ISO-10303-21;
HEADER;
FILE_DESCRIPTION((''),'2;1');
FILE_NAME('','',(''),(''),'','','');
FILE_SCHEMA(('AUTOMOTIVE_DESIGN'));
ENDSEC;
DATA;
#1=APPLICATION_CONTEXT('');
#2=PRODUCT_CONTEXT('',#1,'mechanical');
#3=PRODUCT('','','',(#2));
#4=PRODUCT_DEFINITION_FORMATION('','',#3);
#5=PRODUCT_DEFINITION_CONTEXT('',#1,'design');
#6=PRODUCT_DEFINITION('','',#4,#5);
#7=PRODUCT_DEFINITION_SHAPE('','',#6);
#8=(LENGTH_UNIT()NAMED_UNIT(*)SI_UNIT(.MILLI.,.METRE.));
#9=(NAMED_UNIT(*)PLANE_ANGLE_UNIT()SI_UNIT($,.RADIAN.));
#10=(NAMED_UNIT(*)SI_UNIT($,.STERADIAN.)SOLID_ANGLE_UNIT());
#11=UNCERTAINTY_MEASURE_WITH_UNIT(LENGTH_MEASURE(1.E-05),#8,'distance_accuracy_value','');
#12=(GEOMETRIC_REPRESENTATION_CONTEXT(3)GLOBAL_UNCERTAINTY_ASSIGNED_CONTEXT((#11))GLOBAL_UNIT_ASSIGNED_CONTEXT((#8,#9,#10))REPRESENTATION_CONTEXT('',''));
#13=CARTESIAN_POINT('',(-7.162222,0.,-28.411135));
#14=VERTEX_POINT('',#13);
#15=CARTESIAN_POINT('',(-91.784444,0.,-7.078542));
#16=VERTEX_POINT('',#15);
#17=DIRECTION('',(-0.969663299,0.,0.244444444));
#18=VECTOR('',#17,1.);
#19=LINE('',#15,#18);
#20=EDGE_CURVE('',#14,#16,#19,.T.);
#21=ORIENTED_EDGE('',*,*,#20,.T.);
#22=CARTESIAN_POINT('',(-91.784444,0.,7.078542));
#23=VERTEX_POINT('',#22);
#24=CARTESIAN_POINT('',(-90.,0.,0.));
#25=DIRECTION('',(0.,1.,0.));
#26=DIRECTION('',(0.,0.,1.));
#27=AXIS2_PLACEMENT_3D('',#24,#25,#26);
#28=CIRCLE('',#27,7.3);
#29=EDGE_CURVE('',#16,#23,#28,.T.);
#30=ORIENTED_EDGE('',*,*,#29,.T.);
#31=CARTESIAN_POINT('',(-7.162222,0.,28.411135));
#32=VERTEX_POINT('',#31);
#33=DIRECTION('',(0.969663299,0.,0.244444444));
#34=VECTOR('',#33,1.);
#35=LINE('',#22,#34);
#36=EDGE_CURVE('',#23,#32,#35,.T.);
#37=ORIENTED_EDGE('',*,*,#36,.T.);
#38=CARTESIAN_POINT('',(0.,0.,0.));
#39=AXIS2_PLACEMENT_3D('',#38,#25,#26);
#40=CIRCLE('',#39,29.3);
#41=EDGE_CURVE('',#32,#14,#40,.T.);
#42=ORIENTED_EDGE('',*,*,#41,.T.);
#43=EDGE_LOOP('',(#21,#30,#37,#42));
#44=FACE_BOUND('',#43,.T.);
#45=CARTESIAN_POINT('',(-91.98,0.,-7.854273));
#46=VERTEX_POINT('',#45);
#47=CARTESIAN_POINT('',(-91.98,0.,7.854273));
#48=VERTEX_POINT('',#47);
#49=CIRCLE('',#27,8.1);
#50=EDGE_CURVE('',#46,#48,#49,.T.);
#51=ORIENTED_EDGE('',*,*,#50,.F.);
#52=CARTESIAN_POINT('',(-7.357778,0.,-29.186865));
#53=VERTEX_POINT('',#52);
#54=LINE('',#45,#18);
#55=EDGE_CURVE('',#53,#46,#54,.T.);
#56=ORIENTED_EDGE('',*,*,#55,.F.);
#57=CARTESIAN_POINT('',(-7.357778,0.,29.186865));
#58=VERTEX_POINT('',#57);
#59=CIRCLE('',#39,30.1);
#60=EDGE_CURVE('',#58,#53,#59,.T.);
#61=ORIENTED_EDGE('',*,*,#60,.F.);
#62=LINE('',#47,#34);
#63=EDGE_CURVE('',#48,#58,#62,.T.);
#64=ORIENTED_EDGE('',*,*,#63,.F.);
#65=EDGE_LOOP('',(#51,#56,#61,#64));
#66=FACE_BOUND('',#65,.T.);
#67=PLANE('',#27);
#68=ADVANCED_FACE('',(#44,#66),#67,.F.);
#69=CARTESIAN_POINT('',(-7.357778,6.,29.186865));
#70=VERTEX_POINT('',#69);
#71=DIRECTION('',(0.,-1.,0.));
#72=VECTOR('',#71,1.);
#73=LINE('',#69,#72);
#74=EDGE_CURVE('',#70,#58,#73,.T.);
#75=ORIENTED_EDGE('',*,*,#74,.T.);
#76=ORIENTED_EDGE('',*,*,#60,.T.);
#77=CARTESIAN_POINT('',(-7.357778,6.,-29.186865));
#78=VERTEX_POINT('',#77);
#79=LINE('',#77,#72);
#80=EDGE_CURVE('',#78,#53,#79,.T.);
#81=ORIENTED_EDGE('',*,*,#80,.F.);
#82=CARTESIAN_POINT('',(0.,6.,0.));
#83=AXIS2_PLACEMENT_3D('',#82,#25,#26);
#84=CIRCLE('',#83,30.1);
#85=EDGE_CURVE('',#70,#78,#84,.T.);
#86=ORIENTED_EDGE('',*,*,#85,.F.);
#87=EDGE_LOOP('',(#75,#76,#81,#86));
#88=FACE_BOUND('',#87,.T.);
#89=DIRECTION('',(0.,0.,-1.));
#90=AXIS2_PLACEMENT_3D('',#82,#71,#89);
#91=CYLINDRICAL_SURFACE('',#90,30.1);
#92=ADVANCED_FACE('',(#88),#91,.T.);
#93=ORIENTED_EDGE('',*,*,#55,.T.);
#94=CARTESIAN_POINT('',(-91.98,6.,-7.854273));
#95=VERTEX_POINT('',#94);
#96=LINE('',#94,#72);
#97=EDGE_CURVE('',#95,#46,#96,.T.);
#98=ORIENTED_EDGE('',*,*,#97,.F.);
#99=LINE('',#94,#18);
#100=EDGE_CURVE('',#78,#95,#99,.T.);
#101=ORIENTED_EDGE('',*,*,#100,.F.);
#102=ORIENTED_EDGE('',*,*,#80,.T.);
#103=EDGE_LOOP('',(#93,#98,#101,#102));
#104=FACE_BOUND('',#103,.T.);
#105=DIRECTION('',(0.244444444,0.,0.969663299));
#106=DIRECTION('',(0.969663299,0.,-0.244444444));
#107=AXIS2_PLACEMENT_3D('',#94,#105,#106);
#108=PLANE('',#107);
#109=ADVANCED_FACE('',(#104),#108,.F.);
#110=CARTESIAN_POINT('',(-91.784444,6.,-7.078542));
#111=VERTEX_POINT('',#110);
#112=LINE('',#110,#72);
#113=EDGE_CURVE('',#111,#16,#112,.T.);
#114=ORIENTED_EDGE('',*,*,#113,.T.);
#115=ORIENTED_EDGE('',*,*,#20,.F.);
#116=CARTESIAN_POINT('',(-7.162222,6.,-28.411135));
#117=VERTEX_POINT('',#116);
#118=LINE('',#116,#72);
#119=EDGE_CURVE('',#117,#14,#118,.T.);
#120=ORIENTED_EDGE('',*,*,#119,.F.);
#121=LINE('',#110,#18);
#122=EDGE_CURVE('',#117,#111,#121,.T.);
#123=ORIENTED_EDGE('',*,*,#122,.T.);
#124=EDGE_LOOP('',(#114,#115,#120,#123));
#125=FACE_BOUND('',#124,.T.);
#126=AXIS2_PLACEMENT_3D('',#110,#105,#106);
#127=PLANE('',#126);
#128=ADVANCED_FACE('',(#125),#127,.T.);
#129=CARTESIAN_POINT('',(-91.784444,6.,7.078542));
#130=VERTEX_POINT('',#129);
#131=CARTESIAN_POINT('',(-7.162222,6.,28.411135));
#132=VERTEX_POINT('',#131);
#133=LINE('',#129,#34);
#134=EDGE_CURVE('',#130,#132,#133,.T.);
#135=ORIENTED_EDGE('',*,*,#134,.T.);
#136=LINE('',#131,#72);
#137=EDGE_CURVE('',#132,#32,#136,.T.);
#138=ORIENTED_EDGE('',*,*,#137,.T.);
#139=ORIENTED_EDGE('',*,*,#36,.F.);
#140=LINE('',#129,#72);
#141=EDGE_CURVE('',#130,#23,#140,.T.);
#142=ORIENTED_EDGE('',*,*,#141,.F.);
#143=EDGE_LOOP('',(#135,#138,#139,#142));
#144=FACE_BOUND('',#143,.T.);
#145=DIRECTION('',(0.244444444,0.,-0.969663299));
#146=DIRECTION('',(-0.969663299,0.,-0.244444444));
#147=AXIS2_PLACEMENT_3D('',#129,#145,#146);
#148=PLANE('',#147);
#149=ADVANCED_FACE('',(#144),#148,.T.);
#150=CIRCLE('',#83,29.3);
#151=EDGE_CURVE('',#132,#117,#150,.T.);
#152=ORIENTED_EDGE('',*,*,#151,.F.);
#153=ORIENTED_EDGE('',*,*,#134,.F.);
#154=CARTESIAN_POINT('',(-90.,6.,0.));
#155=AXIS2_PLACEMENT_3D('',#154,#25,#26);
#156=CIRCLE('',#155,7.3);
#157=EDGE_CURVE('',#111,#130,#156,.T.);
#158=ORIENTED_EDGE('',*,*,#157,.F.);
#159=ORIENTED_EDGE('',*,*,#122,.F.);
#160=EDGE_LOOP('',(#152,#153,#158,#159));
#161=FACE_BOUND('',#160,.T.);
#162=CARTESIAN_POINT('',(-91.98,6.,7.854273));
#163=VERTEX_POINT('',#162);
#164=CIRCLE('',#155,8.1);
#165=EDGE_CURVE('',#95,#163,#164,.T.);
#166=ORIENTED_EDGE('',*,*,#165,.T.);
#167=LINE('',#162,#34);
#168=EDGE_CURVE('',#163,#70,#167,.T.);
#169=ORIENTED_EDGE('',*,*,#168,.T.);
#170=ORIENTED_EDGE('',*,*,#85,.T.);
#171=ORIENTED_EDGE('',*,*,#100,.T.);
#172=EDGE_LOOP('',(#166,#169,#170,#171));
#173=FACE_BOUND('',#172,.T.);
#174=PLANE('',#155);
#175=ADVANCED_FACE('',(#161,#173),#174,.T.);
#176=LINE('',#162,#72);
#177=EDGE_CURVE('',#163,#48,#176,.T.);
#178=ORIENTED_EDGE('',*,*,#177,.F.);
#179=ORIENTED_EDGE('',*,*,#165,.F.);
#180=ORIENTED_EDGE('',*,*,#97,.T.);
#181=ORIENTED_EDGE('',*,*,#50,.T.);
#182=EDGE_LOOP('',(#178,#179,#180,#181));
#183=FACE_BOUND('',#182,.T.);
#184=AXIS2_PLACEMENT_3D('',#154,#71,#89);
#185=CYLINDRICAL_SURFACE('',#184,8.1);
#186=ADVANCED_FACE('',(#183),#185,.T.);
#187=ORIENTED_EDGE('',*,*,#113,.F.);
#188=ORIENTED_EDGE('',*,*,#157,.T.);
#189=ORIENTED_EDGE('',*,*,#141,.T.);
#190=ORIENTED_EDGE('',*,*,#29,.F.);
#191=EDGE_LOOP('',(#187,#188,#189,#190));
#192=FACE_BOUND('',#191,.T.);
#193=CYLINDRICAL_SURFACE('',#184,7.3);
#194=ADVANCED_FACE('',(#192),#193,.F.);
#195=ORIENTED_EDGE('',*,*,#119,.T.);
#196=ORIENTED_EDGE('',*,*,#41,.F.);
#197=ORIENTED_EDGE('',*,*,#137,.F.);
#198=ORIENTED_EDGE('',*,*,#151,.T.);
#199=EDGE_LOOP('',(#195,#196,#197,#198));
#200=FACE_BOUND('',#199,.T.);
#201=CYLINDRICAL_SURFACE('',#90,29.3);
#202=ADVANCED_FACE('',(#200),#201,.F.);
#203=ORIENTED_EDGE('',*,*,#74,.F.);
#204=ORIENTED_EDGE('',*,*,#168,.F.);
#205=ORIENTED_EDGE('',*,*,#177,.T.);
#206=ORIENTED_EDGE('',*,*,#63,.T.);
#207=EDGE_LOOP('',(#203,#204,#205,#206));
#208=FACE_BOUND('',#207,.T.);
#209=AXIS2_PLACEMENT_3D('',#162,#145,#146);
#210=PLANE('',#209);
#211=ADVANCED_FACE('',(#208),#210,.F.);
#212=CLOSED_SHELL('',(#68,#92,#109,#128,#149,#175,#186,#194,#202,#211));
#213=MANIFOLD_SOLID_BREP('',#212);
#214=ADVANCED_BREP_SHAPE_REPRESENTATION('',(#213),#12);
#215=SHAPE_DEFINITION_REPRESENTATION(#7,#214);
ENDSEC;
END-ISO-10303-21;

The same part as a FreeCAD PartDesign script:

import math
import FreeCAD as App
import Part
import Sketcher

V = App.Vector
Q = App.Units.Quantity

doc = App.newDocument("Part")
params = doc.addObject("Spreadsheet::Sheet", "Params")
for row, (alias, value) in enumerate([
    ("sketch1_radius", "8.1 mm"),
    ("sketch1_radius2", "30.1 mm"),
    ("sketch1_radius3", "29.3 mm"),
    ("pad1_length", "6 mm"),
], start=1):
    params.set(f"A{row}", alias)
    params.set(f"B{row}", "=" + value)
    params.setAlias(f"B{row}", alias)

body = doc.addObject("PartDesign::Body", "Body")

# Sketch on XZ plane
sketch1 = body.newObject("Sketcher::SketchObject", "Sketch")
sketch1.AttachmentSupport = (doc.getObject("XZ_Plane"), [""])
sketch1.MapMode = "FlatFace"
sketch1.addGeometry([
    Part.LineSegment(V(-7, -29, 0), V(-92, -8, 0)),  # 0
    Part.ArcOfCircle(Part.Circle(V(-90, 0, 0), V(0, 0, 1), 8), math.radians(104), math.radians(256)),  # 1
    Part.LineSegment(V(-92, 8, 0), V(-7, 29, 0)),  # 2
    Part.ArcOfCircle(Part.Circle(V(0, 0, 0), V(0, 0, 1), 30), math.radians(-104), math.radians(104)),  # 3
    Part.LineSegment(V(-92, -7, 0), V(-7, -28, 0)),  # 4
    Part.ArcOfCircle(Part.Circle(V(0, 0, 0), V(0, 0, 1), 29), math.radians(-104), math.radians(104)),  # 5
    Part.LineSegment(V(-7, 28, 0), V(-92, 7, 0)),  # 6
    Part.ArcOfCircle(Part.Circle(V(-90, 0, 0), V(0, 0, 1), 7), math.radians(104), math.radians(256)),  # 7
], False)
sketch1.addConstraint([
    Sketcher.Constraint("Tangent", 0, 2, 1, 2),
    Sketcher.Constraint("Tangent", 1, 1, 2, 1),
    Sketcher.Constraint("Tangent", 2, 2, 3, 2),
    Sketcher.Constraint("Tangent", 3, 1, 0, 1),
    Sketcher.Constraint("Tangent", 4, 2, 5, 1),
    Sketcher.Constraint("Tangent", 5, 2, 6, 1),
    Sketcher.Constraint("Tangent", 6, 2, 7, 1),
    Sketcher.Constraint("Tangent", 7, 2, 4, 1),
    Sketcher.Constraint("Coincident", 3, 3, -1, 1),
    Sketcher.Constraint("Coincident", 5, 3, -1, 1),
    Sketcher.Constraint("Coincident", 7, 3, 1, 3),
    Sketcher.Constraint("PointOnObject", 1, 3, -1),
    Sketcher.Constraint("Parallel", 0, 4),
    Sketcher.Constraint("Radius", 1, Q("8.1 mm")),
    Sketcher.Constraint("Radius", 3, Q("30.1 mm")),
    Sketcher.Constraint("Radius", 5, Q("29.3 mm")),
    Sketcher.Constraint("DistanceX", 1, 3, -1, 1, Q("90 mm")),
])
sketch1.setExpression("Constraints[13]", "Params.sketch1_radius")
sketch1.setExpression("Constraints[14]", "Params.sketch1_radius2")
sketch1.setExpression("Constraints[15]", "Params.sketch1_radius3")
pad1 = body.newObject("PartDesign::Pad", "Pad")
pad1.Profile = sketch1
pad1.setExpression("Length", "Params.pad1_length")
pad1.Reversed = True

doc.recompute()
